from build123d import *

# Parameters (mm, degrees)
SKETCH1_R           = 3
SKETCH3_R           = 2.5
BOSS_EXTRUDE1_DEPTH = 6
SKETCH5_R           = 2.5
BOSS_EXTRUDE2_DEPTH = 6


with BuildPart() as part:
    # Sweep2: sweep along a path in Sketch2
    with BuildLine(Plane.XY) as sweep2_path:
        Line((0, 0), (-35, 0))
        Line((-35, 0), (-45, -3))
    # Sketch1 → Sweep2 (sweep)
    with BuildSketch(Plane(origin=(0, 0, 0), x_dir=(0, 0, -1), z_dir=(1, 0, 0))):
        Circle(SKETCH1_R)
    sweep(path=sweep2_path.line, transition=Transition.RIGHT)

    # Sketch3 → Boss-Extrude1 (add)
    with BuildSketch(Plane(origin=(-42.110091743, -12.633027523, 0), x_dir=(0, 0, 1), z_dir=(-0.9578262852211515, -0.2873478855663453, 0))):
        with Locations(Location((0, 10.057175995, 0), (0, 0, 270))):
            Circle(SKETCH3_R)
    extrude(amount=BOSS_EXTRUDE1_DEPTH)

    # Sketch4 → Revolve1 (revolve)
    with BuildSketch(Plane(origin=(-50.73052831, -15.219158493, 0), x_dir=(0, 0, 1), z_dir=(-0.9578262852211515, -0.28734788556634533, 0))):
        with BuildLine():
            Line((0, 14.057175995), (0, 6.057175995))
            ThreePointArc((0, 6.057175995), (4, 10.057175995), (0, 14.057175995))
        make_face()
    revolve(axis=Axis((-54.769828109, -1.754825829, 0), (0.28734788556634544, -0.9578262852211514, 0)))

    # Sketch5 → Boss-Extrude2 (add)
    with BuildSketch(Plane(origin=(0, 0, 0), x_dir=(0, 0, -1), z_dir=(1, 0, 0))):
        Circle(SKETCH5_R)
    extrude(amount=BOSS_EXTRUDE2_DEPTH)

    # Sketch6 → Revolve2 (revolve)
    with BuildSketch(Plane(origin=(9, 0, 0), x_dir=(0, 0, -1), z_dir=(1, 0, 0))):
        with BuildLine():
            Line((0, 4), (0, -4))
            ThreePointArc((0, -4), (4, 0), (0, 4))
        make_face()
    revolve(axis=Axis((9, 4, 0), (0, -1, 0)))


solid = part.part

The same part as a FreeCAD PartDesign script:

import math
import FreeCAD as App
import Part
import Sketcher

V = App.Vector
Q = App.Units.Quantity

doc = App.newDocument("Part")
body = doc.addObject("PartDesign::Body", "Body")

# Sketch on YZ plane
sketch1 = body.newObject("Sketcher::SketchObject", "Sketch")
sketch1.AttachmentSupport = (doc.getObject("YZ_Plane"), [""])
sketch1.MapMode = "FlatFace"
sketch1.addGeometry(Part.Circle(V(0, 0, 0), V(0, 0, 1), 3), False)
sketch1.addConstraint([
    Sketcher.Constraint("Coincident", 0, 3, -1, 1),
    Sketcher.Constraint("Diameter", 0, Q("6 mm")),
])

# Sketch on XY plane
sketch2 = body.newObject("Sketcher::SketchObject", "Sketch001")
sketch2.AttachmentSupport = (doc.getObject("XY_Plane"), [""])
sketch2.MapMode = "FlatFace"
sketch2.addGeometry([
    Part.LineSegment(V(0, 0, 0), V(-35, 0, 0)),
    Part.LineSegment(V(-35, 0, 0), V(-45, -3, 0)),
], False)
sketch2.addConstraint([
    Sketcher.Constraint("Coincident", 0, 2, 1, 1),
    Sketcher.Constraint("Horizontal", 0),
    Sketcher.Constraint("Coincident", 0, 1, -1, 1),
    Sketcher.Constraint("DistanceX", 0, 2, 0, 1, Q("35 mm")),
    Sketcher.Constraint("DistanceX", 1, 2, -1, 1, Q("45 mm")),
    Sketcher.Constraint("DistanceY", 1, 2, -1, 1, Q("3 mm")),
])
doc.recompute()

additivepipe = body.newObject("PartDesign::AdditivePipe", "AdditivePipe")
additivepipe.Profile = sketch1
additivepipe.Spine = (sketch2, ["Edge1", "Edge2"])
additivepipe.Transition = "Right corner"

# Sketch on an angled plane
sketch3 = body.newObject("Sketcher::SketchObject", "Sketch002")
sketch3.Placement = App.Placement(V(-42.110092, -12.633028, 0), App.Rotation(V(0, 0, 1), V(-0.287347886, 0.957826285, 0), V(-0.957826285, -0.287347886, 0), "ZXY"))
sketch3.addGeometry(Part.Circle(V(0, 10.057176, 0), V(0, 0, 1), 2.5), False)
sketch3.addConstraint([
    Sketcher.Constraint("PointOnObject", 0, 3, -2),
    Sketcher.Constraint("Diameter", 0, Q("5 mm")),
    Sketcher.Constraint("DistanceY", -1, 1, 0, 3, Q("10.057176 mm")),
])
pad1 = body.newObject("PartDesign::Pad", "Pad")
pad1.Profile = sketch3
pad1.Length = 6

# Sketch on an angled plane
sketch4 = body.newObject("Sketcher::SketchObject", "Sketch003")
sketch4.Placement = App.Placement(V(-50.730528, -15.219158, 0), App.Rotation(V(0, 0, 1), V(-0.287347886, 0.957826285, 0), V(-0.957826285, -0.287347886, 0), "ZXY"))
sketch4.addGeometry([
    Part.LineSegment(V(0, 14.057176, 0), V(0, 6.057176, 0)),
    Part.ArcOfCircle(Part.Circle(V(0, 10.057176, 0), V(0, 0, 1), 4), math.radians(-90), math.radians(90)),
], False)
sketch4.addConstraint([
    Sketcher.Constraint("Coincident", 0, 1, 1, 2),
    Sketcher.Constraint("Coincident", 1, 1, 0, 2),
    Sketcher.Constraint("Vertical", 0),
    Sketcher.Constraint("PointOnObject", 1, 3, -2),
    Sketcher.Constraint("PointOnObject", 0, 1, -2),
    Sketcher.Constraint("Radius", 1, Q("4 mm")),
    Sketcher.Constraint("DistanceY", -1, 1, 1, 3, Q("10.057176 mm")),
])
revolution = body.newObject("PartDesign::Revolution", "Revolution")
revolution.Profile = sketch4
revolution.ReferenceAxis = (sketch4, ["V_Axis"])
revolution.Angle = 360

# Sketch on YZ plane
sketch5 = body.newObject("Sketcher::SketchObject", "Sketch004")
sketch5.AttachmentSupport = (doc.getObject("YZ_Plane"), [""])
sketch5.MapMode = "FlatFace"
sketch5.addGeometry(Part.Circle(V(0, 0, 0), V(0, 0, 1), 2.5), False)
sketch5.addConstraint([
    Sketcher.Constraint("Coincident", 0, 3, -1, 1),
    Sketcher.Constraint("Diameter", 0, Q("5 mm")),
])
pad2 = body.newObject("PartDesign::Pad", "Pad001")
pad2.Profile = sketch5
pad2.Length = 6

# Sketch on YZ plane
sketch6 = body.newObject("Sketcher::SketchObject", "Sketch005")
sketch6.AttachmentSupport = (doc.getObject("YZ_Plane"), [""])
sketch6.MapMode = "FlatFace"
sketch6.AttachmentOffset = App.Placement(V(0, 0, 9), App.Rotation())
sketch6.addGeometry([
    Part.LineSegment(V(4, 0, 0), V(-4, 0, 0)),
    Part.ArcOfCircle(Part.Circle(V(0, 0, 0), V(0, 0, 1), 4), math.radians(180), math.radians(360)),
], False)
sketch6.addConstraint([
    Sketcher.Constraint("Coincident", 0, 1, 1, 2),
    Sketcher.Constraint("Coincident", 1, 1, 0, 2),
    Sketcher.Constraint("Horizontal", 0),
    Sketcher.Constraint("Coincident", 1, 3, -1, 1),
    Sketcher.Constraint("PointOnObject", 0, 1, -1),
    Sketcher.Constraint("Radius", 1, Q("4 mm")),
])
revolution2 = body.newObject("PartDesign::Revolution", "Revolution001")
revolution2.Profile = sketch6
revolution2.ReferenceAxis = (sketch6, ["H_Axis"])
revolution2.Angle = 360

doc.recompute()
